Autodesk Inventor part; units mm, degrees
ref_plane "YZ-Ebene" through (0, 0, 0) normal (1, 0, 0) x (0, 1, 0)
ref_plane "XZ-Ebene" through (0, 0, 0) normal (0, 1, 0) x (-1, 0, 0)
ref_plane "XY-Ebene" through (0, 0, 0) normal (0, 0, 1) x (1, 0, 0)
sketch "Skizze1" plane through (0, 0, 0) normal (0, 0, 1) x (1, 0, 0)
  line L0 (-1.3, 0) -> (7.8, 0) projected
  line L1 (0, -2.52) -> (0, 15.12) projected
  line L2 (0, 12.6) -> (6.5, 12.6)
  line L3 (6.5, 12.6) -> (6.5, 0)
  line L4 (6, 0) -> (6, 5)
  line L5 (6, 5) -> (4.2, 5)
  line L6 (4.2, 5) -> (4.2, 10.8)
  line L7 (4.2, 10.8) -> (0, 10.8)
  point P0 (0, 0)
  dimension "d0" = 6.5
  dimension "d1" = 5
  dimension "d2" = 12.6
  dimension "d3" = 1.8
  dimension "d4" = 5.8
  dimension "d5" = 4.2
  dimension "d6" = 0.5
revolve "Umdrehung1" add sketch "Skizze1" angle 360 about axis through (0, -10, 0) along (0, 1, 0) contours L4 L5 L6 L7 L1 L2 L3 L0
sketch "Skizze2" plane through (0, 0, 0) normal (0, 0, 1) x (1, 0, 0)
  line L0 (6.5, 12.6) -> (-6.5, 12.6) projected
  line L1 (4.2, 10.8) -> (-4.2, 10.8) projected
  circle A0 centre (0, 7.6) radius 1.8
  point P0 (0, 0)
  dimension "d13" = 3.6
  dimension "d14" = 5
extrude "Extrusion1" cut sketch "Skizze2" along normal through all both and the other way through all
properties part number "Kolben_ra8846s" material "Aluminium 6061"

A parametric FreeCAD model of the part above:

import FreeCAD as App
import Part
import Sketcher

V = App.Vector

doc = App.newDocument("Part")
body = doc.addObject("PartDesign::Body", "Body")

sketch1 = body.newObject("Sketcher::SketchObject", "Sketch")
sketch1.AttachmentSupport = (doc.getObject("XY_Plane"), [""])
sketch1.MapMode = "FlatFace"
sketch1.addGeometry(Part.LineSegment(V(6, 5, 0), V(6, 0, 0)), False)
sketch1.addGeometry(Part.LineSegment(V(6, 0, 0), V(6.5, 0, 0)), False)
sketch1.addGeometry(Part.LineSegment(V(6.5, 0, 0), V(6.5, 12.6, 0)), False)
sketch1.addGeometry(Part.LineSegment(V(6.5, 12.6, 0), V(0, 12.6, 0)), False)
sketch1.addGeometry(Part.LineSegment(V(0, 12.6, 0), V(0, 10.8, 0)), False)
sketch1.addGeometry(Part.LineSegment(V(0, 10.8, 0), V(4.2, 10.8, 0)), False)
sketch1.addGeometry(Part.LineSegment(V(4.2, 10.8, 0), V(4.2, 5, 0)), False)
sketch1.addGeometry(Part.LineSegment(V(4.2, 5, 0), V(6, 5, 0)), False)
sketch1.addConstraint(Sketcher.Constraint("Coincident", 0, 2, 1, 1))
sketch1.addConstraint(Sketcher.Constraint("Coincident", 1, 2, 2, 1))
sketch1.addConstraint(Sketcher.Constraint("Coincident", 2, 2, 3, 1))
sketch1.addConstraint(Sketcher.Constraint("Coincident", 3, 2, 4, 1))
sketch1.addConstraint(Sketcher.Constraint("Coincident", 4, 2, 5, 1))
sketch1.addConstraint(Sketcher.Constraint("Coincident", 5, 2, 6, 1))
sketch1.addConstraint(Sketcher.Constraint("Coincident", 6, 2, 7, 1))
sketch1.addConstraint(Sketcher.Constraint("Coincident", 7, 2, 0, 1))
sketch1.addConstraint(Sketcher.Constraint("Vertical", 0))
sketch1.addConstraint(Sketcher.Constraint("Horizontal", 1))
sketch1.addConstraint(Sketcher.Constraint("Vertical", 2))
sketch1.addConstraint(Sketcher.Constraint("Horizontal", 3))
sketch1.addConstraint(Sketcher.Constraint("Vertical", 4))
sketch1.addConstraint(Sketcher.Constraint("Horizontal", 5))
sketch1.addConstraint(Sketcher.Constraint("Vertical", 6))
sketch1.addConstraint(Sketcher.Constraint("Horizontal", 7))
sketch1.addConstraint(Sketcher.Constraint("PointOnObject", 0, 2, -1))
sketch1.addConstraint(Sketcher.Constraint("PointOnObject", 3, 2, -2))
sketch1.addConstraint(Sketcher.Constraint("Equal", 7, 4))
sketch1.addConstraint(Sketcher.Constraint("DistanceY", 0, 2, 0, 1, 5.0))
sketch1.addConstraint(Sketcher.Constraint("DistanceX", 1, 1, 1, 2, 0.5))
sketch1.addConstraint(Sketcher.Constraint("DistanceX", 3, 2, 3, 1, 6.5))
sketch1.addConstraint(Sketcher.Constraint("DistanceX", 5, 1, 5, 2, 4.2))
sketch1.addConstraint(Sketcher.Constraint("DistanceY", 2, 1, 2, 2, 12.6))
revolution = body.newObject("PartDesign::Revolution", "Revolution")
revolution.Profile = sketch1
revolution.ReferenceAxis = (sketch1, ["V_Axis"])
revolution.Angle = 360

sketch2 = body.newObject("Sketcher::SketchObject", "Sketch001")
sketch2.AttachmentSupport = (doc.getObject("XY_Plane"), [""])
sketch2.MapMode = "FlatFace"
sketch2.addGeometry(Part.Circle(V(0, 7.6, 0), V(0, 0, 1), 1.8), False)
sketch2.addConstraint(Sketcher.Constraint("PointOnObject", 0, 3, -2))
sketch2.addConstraint(Sketcher.Constraint("Diameter", 0, 3.6))
sketch2.addConstraint(Sketcher.Constraint("DistanceY", -1, 1, 0, 3, 7.6))
pocket1 = body.newObject("PartDesign::Pocket", "Pocket")
pocket1.Profile = sketch2
pocket1.Type = "ThroughAll"
pocket1.Midplane = True

doc.recompute()
